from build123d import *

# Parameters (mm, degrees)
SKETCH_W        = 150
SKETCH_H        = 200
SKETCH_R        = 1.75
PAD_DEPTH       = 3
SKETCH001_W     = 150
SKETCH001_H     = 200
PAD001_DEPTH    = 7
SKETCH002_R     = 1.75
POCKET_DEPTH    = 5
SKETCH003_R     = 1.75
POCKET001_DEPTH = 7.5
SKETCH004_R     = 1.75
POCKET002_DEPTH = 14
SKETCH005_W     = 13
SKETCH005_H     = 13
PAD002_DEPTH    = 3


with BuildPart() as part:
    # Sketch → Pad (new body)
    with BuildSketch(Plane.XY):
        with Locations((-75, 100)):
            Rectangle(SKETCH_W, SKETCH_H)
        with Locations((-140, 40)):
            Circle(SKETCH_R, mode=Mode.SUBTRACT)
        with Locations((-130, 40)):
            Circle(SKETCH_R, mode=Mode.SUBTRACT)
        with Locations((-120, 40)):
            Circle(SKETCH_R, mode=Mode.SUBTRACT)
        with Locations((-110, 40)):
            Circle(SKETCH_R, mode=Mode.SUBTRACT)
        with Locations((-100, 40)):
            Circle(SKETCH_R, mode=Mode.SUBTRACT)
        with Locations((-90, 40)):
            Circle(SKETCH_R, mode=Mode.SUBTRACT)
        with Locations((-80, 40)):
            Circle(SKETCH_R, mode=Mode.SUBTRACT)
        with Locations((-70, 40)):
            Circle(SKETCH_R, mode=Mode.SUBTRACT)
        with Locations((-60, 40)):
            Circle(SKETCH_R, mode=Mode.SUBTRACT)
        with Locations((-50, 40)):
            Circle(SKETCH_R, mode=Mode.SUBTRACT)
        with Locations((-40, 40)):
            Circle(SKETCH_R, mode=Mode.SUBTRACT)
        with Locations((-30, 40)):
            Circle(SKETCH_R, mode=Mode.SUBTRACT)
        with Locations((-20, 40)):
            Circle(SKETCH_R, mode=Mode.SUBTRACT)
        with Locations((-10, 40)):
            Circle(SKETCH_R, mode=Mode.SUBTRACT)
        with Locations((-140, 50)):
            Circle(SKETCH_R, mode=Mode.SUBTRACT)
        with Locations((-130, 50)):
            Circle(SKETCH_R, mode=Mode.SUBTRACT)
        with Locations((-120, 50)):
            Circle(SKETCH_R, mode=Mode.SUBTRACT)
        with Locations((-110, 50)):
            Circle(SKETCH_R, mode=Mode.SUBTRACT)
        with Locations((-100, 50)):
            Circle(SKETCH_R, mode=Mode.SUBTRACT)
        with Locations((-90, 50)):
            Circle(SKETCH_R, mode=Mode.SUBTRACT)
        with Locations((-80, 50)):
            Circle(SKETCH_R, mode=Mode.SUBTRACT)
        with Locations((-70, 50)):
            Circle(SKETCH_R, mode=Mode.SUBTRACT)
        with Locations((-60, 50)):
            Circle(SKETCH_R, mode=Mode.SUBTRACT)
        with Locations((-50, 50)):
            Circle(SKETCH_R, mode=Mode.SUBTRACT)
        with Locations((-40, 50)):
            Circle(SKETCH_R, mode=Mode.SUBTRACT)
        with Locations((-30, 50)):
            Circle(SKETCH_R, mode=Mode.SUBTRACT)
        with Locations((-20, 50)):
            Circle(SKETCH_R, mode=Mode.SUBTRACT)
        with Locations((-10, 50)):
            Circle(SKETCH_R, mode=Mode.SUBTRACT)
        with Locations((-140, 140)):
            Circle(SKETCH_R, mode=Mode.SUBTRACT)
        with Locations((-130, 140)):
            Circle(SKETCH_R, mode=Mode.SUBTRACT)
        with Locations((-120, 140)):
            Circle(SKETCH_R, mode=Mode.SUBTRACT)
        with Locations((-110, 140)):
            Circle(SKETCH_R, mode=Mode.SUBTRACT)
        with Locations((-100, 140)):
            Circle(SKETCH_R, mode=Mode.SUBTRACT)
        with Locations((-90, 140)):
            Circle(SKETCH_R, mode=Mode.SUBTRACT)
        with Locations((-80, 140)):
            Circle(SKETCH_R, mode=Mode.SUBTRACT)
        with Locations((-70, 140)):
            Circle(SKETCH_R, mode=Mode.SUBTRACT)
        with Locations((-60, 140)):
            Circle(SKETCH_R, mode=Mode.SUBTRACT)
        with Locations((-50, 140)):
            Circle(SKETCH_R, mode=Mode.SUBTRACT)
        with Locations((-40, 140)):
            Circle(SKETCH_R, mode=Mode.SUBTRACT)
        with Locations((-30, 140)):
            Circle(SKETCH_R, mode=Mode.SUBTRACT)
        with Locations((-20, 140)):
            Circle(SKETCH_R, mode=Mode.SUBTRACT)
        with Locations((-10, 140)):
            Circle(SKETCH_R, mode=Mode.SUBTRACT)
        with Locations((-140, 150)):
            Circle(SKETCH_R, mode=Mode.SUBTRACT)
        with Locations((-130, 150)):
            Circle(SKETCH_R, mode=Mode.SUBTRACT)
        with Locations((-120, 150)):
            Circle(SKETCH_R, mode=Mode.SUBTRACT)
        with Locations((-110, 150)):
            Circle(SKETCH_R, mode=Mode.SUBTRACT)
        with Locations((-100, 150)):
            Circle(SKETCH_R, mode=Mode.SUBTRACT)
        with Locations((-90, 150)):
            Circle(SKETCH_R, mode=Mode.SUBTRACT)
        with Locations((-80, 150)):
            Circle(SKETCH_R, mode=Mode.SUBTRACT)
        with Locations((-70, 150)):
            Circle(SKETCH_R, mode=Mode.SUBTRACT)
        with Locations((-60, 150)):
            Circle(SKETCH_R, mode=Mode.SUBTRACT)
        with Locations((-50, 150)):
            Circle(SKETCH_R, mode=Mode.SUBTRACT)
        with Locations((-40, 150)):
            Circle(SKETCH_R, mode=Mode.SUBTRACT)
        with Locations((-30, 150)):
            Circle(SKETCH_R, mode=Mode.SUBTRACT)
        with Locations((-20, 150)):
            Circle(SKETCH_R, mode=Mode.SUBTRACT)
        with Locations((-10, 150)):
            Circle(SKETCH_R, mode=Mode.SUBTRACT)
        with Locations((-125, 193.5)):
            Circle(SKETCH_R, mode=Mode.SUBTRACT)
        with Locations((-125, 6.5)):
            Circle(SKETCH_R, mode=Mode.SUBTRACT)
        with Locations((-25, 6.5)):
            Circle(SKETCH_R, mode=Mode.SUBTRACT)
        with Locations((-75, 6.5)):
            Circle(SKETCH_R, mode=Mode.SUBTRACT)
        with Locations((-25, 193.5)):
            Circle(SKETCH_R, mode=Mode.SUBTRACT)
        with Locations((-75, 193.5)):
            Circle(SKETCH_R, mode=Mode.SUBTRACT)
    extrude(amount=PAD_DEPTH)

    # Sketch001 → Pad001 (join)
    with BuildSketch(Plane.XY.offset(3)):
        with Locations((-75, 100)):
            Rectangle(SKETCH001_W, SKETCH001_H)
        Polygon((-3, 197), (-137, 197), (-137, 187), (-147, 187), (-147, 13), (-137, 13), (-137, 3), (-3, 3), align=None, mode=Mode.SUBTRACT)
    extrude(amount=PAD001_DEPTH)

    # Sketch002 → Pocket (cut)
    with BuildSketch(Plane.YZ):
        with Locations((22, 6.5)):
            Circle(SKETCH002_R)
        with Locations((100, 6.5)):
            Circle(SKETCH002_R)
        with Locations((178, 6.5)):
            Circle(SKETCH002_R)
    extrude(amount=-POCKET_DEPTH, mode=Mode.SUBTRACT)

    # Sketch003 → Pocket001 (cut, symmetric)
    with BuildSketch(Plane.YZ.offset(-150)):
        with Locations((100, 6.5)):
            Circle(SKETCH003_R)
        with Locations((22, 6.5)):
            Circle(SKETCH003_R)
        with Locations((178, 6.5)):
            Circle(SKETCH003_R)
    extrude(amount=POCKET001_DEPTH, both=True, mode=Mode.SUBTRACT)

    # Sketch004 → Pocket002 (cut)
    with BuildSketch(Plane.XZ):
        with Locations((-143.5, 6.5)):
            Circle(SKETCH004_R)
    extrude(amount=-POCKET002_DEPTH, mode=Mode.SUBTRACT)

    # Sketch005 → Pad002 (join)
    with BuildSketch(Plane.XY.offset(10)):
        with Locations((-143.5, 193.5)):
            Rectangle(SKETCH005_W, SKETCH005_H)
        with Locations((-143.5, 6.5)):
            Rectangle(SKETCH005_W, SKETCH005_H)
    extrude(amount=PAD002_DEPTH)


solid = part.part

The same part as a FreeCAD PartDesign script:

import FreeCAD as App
import Part
import Sketcher

V = App.Vector
Q = App.Units.Quantity

doc = App.newDocument("Part")
body = doc.addObject("PartDesign::Body", "Body")

sketch1 = body.newObject("Sketcher::SketchObject", "Sketch")
sketch1.AttachmentSupport = (doc.getObject("XY_Plane"), [""])
sketch1.MapMode = "FlatFace"
sketch1.addGeometry(Part.LineSegment(V(-150, 200, 0), V(-150, 0, 0)), False)
sketch1.addGeometry(Part.LineSegment(V(-150, 0, 0), V(0, 0, 0)), False)
sketch1.addGeometry(Part.LineSegment(V(0, 0, 0), V(0, 200, 0)), False)
sketch1.addGeometry(Part.LineSegment(V(0, 200, 0), V(-150, 200, 0)), False)
sketch1.addGeometry(Part.Circle(V(-125, 6.5, 0), V(0, 0, 1), 1.8), False)
sketch1.addGeometry(Part.Circle(V(-140, 40, 0), V(0, 0, 1), 1.8), False)
sketch1.addGeometry(Part.Circle(V(-130, 40, 0), V(0, 0, 1), 1.8), False)
sketch1.addGeometry(Part.Circle(V(-140, 50, 0), V(0, 0, 1), 1.8), False)
sketch1.addGeometry(Part.Circle(V(-130, 50, 0), V(0, 0, 1), 1.8), False)
sketch1.addGeometry(Part.Circle(V(-120, 40, 0), V(0, 0, 1), 1.8), False)
sketch1.addGeometry(Part.Circle(V(-110, 40, 0), V(0, 0, 1), 1.8), False)
sketch1.addGeometry(Part.Circle(V(-120, 50, 0), V(0, 0, 1), 1.8), False)
sketch1.addGeometry(Part.Circle(V(-110, 50, 0), V(0, 0, 1), 1.8), False)
sketch1.addGeometry(Part.Circle(V(-100, 40, 0), V(0, 0, 1), 1.8), False)
sketch1.addGeometry(Part.Circle(V(-100, 50, 0), V(0, 0, 1), 1.8), False)
sketch1.addGeometry(Part.Circle(V(-90, 40, 0), V(0, 0, 1), 1.8), False)
sketch1.addGeometry(Part.Circle(V(-80, 40, 0), V(0, 0, 1), 1.8), False)
sketch1.addGeometry(Part.Circle(V(-90, 50, 0), V(0, 0, 1), 1.8), False)
sketch1.addGeometry(Part.Circle(V(-80, 50, 0), V(0, 0, 1), 1.8), False)
sketch1.addGeometry(Part.Circle(V(-75, 6.5, 0), V(0, 0, 1), 1.8), False)
sketch1.addGeometry(Part.Circle(V(-70, 40, 0), V(0, 0, 1), 1.8), False)
sketch1.addGeometry(Part.Circle(V(-60, 40, 0), V(0, 0, 1), 1.8), False)
sketch1.addGeometry(Part.Circle(V(-70, 50, 0), V(0, 0, 1), 1.8), False)
sketch1.addGeometry(Part.Circle(V(-60, 50, 0), V(0, 0, 1), 1.8), False)
sketch1.addGeometry(Part.Circle(V(-50, 40, 0), V(0, 0, 1), 1.8), False)
sketch1.addGeometry(Part.Circle(V(-50, 50, 0), V(0, 0, 1), 1.8), False)
sketch1.addGeometry(Part.Circle(V(-25, 6.5, 0), V(0, 0, 1), 1.8), False)
sketch1.addGeometry(Part.Circle(V(-40, 40, 0), V(0, 0, 1), 1.8), False)
sketch1.addGeometry(Part.Circle(V(-30, 40, 0), V(0, 0, 1), 1.8), False)
sketch1.addGeometry(Part.Circle(V(-40, 50, 0), V(0, 0, 1), 1.8), False)
sketch1.addGeometry(Part.Circle(V(-30, 50, 0), V(0, 0, 1), 1.8), False)
sketch1.addGeometry(Part.Circle(V(-20, 40, 0), V(0, 0, 1), 1.8), False)
sketch1.addGeometry(Part.Circle(V(-10, 40, 0), V(0, 0, 1), 1.8), False)
sketch1.addGeometry(Part.Circle(V(-20, 50, 0), V(0, 0, 1), 1.8), False)
sketch1.addGeometry(Part.Circle(V(-10, 50, 0), V(0, 0, 1), 1.8), False)
sketch1.addGeometry(Part.Circle(V(-140, 140, 0), V(0, 0, 1), 1.8), False)
sketch1.addGeometry(Part.Circle(V(-130, 140, 0), V(0, 0, 1), 1.8), False)
sketch1.addGeometry(Part.Circle(V(-120, 140, 0), V(0, 0, 1), 1.8), False)
sketch1.addGeometry(Part.Circle(V(-110, 140, 0), V(0, 0, 1), 1.8), False)
sketch1.addGeometry(Part.Circle(V(-100, 140, 0), V(0, 0, 1), 1.8), False)
sketch1.addGeometry(Part.Circle(V(-90, 140, 0), V(0, 0, 1), 1.8), False)
sketch1.addGeometry(Part.Circle(V(-80, 140, 0), V(0, 0, 1), 1.8), False)
sketch1.addGeometry(Part.Circle(V(-140, 150, 0), V(0, 0, 1), 1.8), False)
sketch1.addGeometry(Part.Circle(V(-130, 150, 0), V(0, 0, 1), 1.8), False)
sketch1.addGeometry(Part.Circle(V(-120, 150, 0), V(0, 0, 1), 1.8), False)
sketch1.addGeometry(Part.Circle(V(-110, 150, 0), V(0, 0, 1), 1.8), False)
sketch1.addGeometry(Part.Circle(V(-125, 193.5, 0), V(0, 0, 1), 1.8), False)
sketch1.addGeometry(Part.Circle(V(-100, 150, 0), V(0, 0, 1), 1.8), False)
sketch1.addGeometry(Part.Circle(V(-90, 150, 0), V(0, 0, 1), 1.8), False)
sketch1.addGeometry(Part.Circle(V(-80, 150, 0), V(0, 0, 1), 1.8), False)
sketch1.addGeometry(Part.Circle(V(-70, 140, 0), V(0, 0, 1), 1.8), False)
sketch1.addGeometry(Part.Circle(V(-60, 140, 0), V(0, 0, 1), 1.8), False)
sketch1.addGeometry(Part.Circle(V(-50, 140, 0), V(0, 0, 1), 1.8), False)
sketch1.addGeometry(Part.Circle(V(-40, 140, 0), V(0, 0, 1), 1.8), False)
sketch1.addGeometry(Part.Circle(V(-30, 140, 0), V(0, 0, 1), 1.8), False)
sketch1.addGeometry(Part.Circle(V(-20, 140, 0), V(0, 0, 1), 1.8), False)
sketch1.addGeometry(Part.Circle(V(-10, 140, 0), V(0, 0, 1), 1.8), False)
sketch1.addGeometry(Part.Circle(V(-70, 150, 0), V(0, 0, 1), 1.8), False)
sketch1.addGeometry(Part.Circle(V(-60, 150, 0), V(0, 0, 1), 1.8), False)
sketch1.addGeometry(Part.Circle(V(-50, 150, 0), V(0, 0, 1), 1.8), False)
sketch1.addGeometry(Part.Circle(V(-75, 193.5, 0), V(0, 0, 1), 1.8), False)
sketch1.addGeometry(Part.Circle(V(-40, 150, 0), V(0, 0, 1), 1.8), False)
sketch1.addGeometry(Part.Circle(V(-30, 150, 0), V(0, 0, 1), 1.8), False)
sketch1.addGeometry(Part.Circle(V(-20, 150, 0), V(0, 0, 1), 1.8), False)
sketch1.addGeometry(Part.Circle(V(-10, 150, 0), V(0, 0, 1), 1.8), False)
sketch1.addGeometry(Part.Circle(V(-25, 193.5, 0), V(0, 0, 1), 1.8), False)
sketch1.addConstraint(Sketcher.Constraint("Coincident", 0, 2, 1, 1))
sketch1.addConstraint(Sketcher.Constraint("Coincident", 1, 2, 2, 1))
sketch1.addConstraint(Sketcher.Constraint("Coincident", 2, 2, 3, 1))
sketch1.addConstraint(Sketcher.Constraint("Coincident", 3, 2, 0, 1))
sketch1.addConstraint(Sketcher.Constraint("Vertical", 0))
sketch1.addConstraint(Sketcher.Constraint("Horizontal", 1))
sketch1.addConstraint(Sketcher.Constraint("Vertical", 2))
sketch1.addConstraint(Sketcher.Constraint("Horizontal", 3))
sketch1.addConstraint(Sketcher.Constraint("Coincident", 1, 2, -1, 1))
sketch1.addConstraint(Sketcher.Constraint("Equal", 4, 5))
sketch1.addConstraint(Sketcher.Constraint("Equal", 5, 6))
sketch1.addConstraint(Sketcher.Constraint("Equal", 6, 7))
sketch1.addConstraint(Sketcher.Constraint("Equal", 7, 8))
sketch1.addConstraint(Sketcher.Constraint("Equal", 8, 9))
sketch1.addConstraint(Sketcher.Constraint("Equal", 9, 10))
sketch1.addConstraint(Sketcher.Constraint("Equal", 10, 11))
sketch1.addConstraint(Sketcher.Constraint("Equal", 11, 12))
sketch1.addConstraint(Sketcher.Constraint("Equal", 12, 13))
sketch1.addConstraint(Sketcher.Constraint("Equal", 13, 14))
sketch1.addConstraint(Sketcher.Constraint("Equal", 14, 15))
sketch1.addConstraint(Sketcher.Constraint("Equal", 15, 16))
sketch1.addConstraint(Sketcher.Constraint("Equal", 16, 17))
sketch1.addConstraint(Sketcher.Constraint("Equal", 17, 18))
sketch1.addConstraint(Sketcher.Constraint("Equal", 18, 19))
sketch1.addConstraint(Sketcher.Constraint("Equal", 19, 20))
sketch1.addConstraint(Sketcher.Constraint("Equal", 20, 21))
sketch1.addConstraint(Sketcher.Constraint("Equal", 21, 22))
sketch1.addConstraint(Sketcher.Constraint("Equal", 22, 23))
sketch1.addConstraint(Sketcher.Constraint("Equal", 23, 24))
sketch1.addConstraint(Sketcher.Constraint("Equal", 24, 25))
sketch1.addConstraint(Sketcher.Constraint("Equal", 25, 26))
sketch1.addConstraint(Sketcher.Constraint("Equal", 26, 27))
sketch1.addConstraint(Sketcher.Constraint("Equal", 27, 28))
sketch1.addConstraint(Sketcher.Constraint("Equal", 28, 29))
sketch1.addConstraint(Sketcher.Constraint("Equal", 29, 30))
sketch1.addConstraint(Sketcher.Constraint("Equal", 30, 31))
sketch1.addConstraint(Sketcher.Constraint("Equal", 31, 32))
sketch1.addConstraint(Sketcher.Constraint("Equal", 32, 33))
sketch1.addConstraint(Sketcher.Constraint("Equal", 33, 34))
sketch1.addConstraint(Sketcher.Constraint("Equal", 34, 35))
sketch1.addConstraint(Sketcher.Constraint("Equal", 35, 36))
sketch1.addConstraint(Sketcher.Constraint("Equal", 36, 37))
sketch1.addConstraint(Sketcher.Constraint("Equal", 37, 38))
sketch1.addConstraint(Sketcher.Constraint("Equal", 38, 39))
sketch1.addConstraint(Sketcher.Constraint("Equal", 39, 40))
sketch1.addConstraint(Sketcher.Constraint("Equal", 40, 41))
sketch1.addConstraint(Sketcher.Constraint("Equal", 41, 42))
sketch1.addConstraint(Sketcher.Constraint("Equal", 42, 43))
sketch1.addConstraint(Sketcher.Constraint("Equal", 43, 44))
sketch1.addConstraint(Sketcher.Constraint("Equal", 44, 45))
sketch1.addConstraint(Sketcher.Constraint("Equal", 45, 46))
sketch1.addConstraint(Sketcher.Constraint("Equal", 46, 47))
sketch1.addConstraint(Sketcher.Constraint("Equal", 47, 48))
sketch1.addConstraint(Sketcher.Constraint("Equal", 48, 49))
sketch1.addConstraint(Sketcher.Constraint("Equal", 49, 50))
sketch1.addConstraint(Sketcher.Constraint("Equal", 50, 51))
sketch1.addConstraint(Sketcher.Constraint("Equal", 51, 52))
sketch1.addConstraint(Sketcher.Constraint("Equal", 52, 53))
sketch1.addConstraint(Sketcher.Constraint("Equal", 53, 54))
sketch1.addConstraint(Sketcher.Constraint("Equal", 54, 55))
sketch1.addConstraint(Sketcher.Constraint("Equal", 55, 56))
sketch1.addConstraint(Sketcher.Constraint("Equal", 56, 57))
sketch1.addConstraint(Sketcher.Constraint("Equal", 57, 58))
sketch1.addConstraint(Sketcher.Constraint("Equal", 58, 59))
sketch1.addConstraint(Sketcher.Constraint("Equal", 59, 60))
sketch1.addConstraint(Sketcher.Constraint("Equal", 60, 61))
sketch1.addConstraint(Sketcher.Constraint("Equal", 61, 62))
sketch1.addConstraint(Sketcher.Constraint("Equal", 62, 63))
sketch1.addConstraint(Sketcher.Constraint("Equal", 63, 64))
sketch1.addConstraint(Sketcher.Constraint("Equal", 64, 65))
sketch1.addConstraint(Sketcher.Constraint("Horizontal", 5, 3, 6, 3))
sketch1.addConstraint(Sketcher.Constraint("Horizontal", 7, 3, 8, 3))
sketch1.addConstraint(Sketcher.Constraint("Horizontal", 6, 3, 9, 3))
sketch1.addConstraint(Sketcher.Constraint("Horizontal", 9, 3, 10, 3))
sketch1.addConstraint(Sketcher.Constraint("Horizontal", 8, 3, 11, 3))
sketch1.addConstraint(Sketcher.Constraint("Horizontal", 11, 3, 12, 3))
sketch1.addConstraint(Sketcher.Constraint("Horizontal", 10, 3, 13, 3))
sketch1.addConstraint(Sketcher.Constraint("Horizontal", 12, 3, 14, 3))
sketch1.addConstraint(Sketcher.Constraint("Horizontal", 13, 3, 15, 3))
sketch1.addConstraint(Sketcher.Constraint("Horizontal", 15, 3, 16, 3))
sketch1.addConstraint(Sketcher.Constraint("Horizontal", 14, 3, 17, 3))
sketch1.addConstraint(Sketcher.Constraint("Horizontal", 17, 3, 18, 3))
sketch1.addConstraint(Sketcher.Constraint("Horizontal", 4, 3, 19, 3))
sketch1.addConstraint(Sketcher.Constraint("Horizontal", 16, 3, 20, 3))
sketch1.addConstraint(Sketcher.Constraint("Horizontal", 20, 3, 21, 3))
sketch1.addConstraint(Sketcher.Constraint("Horizontal", 18, 3, 22, 3))
sketch1.addConstraint(Sketcher.Constraint("Horizontal", 22, 3, 23, 3))
sketch1.addConstraint(Sketcher.Constraint("Horizontal", 21, 3, 24, 3))
sketch1.addConstraint(Sketcher.Constraint("Horizontal", 23, 3, 25, 3))
sketch1.addConstraint(Sketcher.Constraint("Horizontal", 19, 3, 26, 3))
sketch1.addConstraint(Sketcher.Constraint("Horizontal", 24, 3, 27, 3))
sketch1.addConstraint(Sketcher.Constraint("Horizontal", 27, 3, 28, 3))
sketch1.addConstraint(Sketcher.Constraint("Horizontal", 25, 3, 29, 3))
sketch1.addConstraint(Sketcher.Constraint("Horizontal", 29, 3, 30, 3))
sketch1.addConstraint(Sketcher.Constraint("Horizontal", 28, 3, 31, 3))
sketch1.addConstraint(Sketcher.Constraint("Horizontal", 31, 3, 32, 3))
sketch1.addConstraint(Sketcher.Constraint("Horizontal", 30, 3, 33, 3))
sketch1.addConstraint(Sketcher.Constraint("Horizontal", 33, 3, 34, 3))
sketch1.addConstraint(Sketcher.Constraint("Horizontal", 35, 3, 36, 3))
sketch1.addConstraint(Sketcher.Constraint("Horizontal", 36, 3, 37, 3))
sketch1.addConstraint(Sketcher.Constraint("Horizontal", 37, 3, 38, 3))
sketch1.addConstraint(Sketcher.Constraint("Horizontal", 38, 3, 39, 3))
sketch1.addConstraint(Sketcher.Constraint("Horizontal", 39, 3, 40, 3))
sketch1.addConstraint(Sketcher.Constraint("Horizontal", 40, 3, 41, 3))
sketch1.addConstraint(Sketcher.Constraint("Horizontal", 42, 3, 43, 3))
sketch1.addConstraint(Sketcher.Constraint("Horizontal", 43, 3, 44, 3))
sketch1.addConstraint(Sketcher.Constraint("Horizontal", 44, 3, 45, 3))
sketch1.addConstraint(Sketcher.Constraint("Horizontal", 45, 3, 47, 3))
sketch1.addConstraint(Sketcher.Constraint("Horizontal", 47, 3, 48, 3))
sketch1.addConstraint(Sketcher.Constraint("Horizontal", 48, 3, 49, 3))
sketch1.addConstraint(Sketcher.Constraint("Horizontal", 41, 3, 50, 3))
sketch1.addConstraint(Sketcher.Constraint("Horizontal", 50, 3, 51, 3))
sketch1.addConstraint(Sketcher.Constraint("Horizontal", 51, 3, 52, 3))
sketch1.addConstraint(Sketcher.Constraint("Horizontal", 52, 3, 53, 3))
sketch1.addConstraint(Sketcher.Constraint("Horizontal", 53, 3, 54, 3))
sketch1.addConstraint(Sketcher.Constraint("Horizontal", 54, 3, 55, 3))
sketch1.addConstraint(Sketcher.Constraint("Horizontal", 55, 3, 56, 3))
sketch1.addConstraint(Sketcher.Constraint("Horizontal", 49, 3, 57, 3))
sketch1.addConstraint(Sketcher.Constraint("Horizontal", 57, 3, 58, 3))
sketch1.addConstraint(Sketcher.Constraint("Horizontal", 58, 3, 59, 3))
sketch1.addConstraint(Sketcher.Constraint("Horizontal", 46, 3, 60, 3))
sketch1.addConstraint(Sketcher.Constraint("Horizontal", 59, 3, 61, 3))
sketch1.addConstraint(Sketcher.Constraint("Horizontal", 61, 3, 62, 3))
sketch1.addConstraint(Sketcher.Constraint("Horizontal", 62, 3, 63, 3))
sketch1.addConstraint(Sketcher.Constraint("Horizontal", 63, 3, 64, 3))
sketch1.addConstraint(Sketcher.Constraint("Horizontal", 60, 3, 65, 3))
sketch1.addConstraint(Sketcher.Constraint("Vertical", 5, 3, 7, 3))
sketch1.addConstraint(Sketcher.Constraint("Vertical", 6, 3, 8, 3))
sketch1.addConstraint(Sketcher.Constraint("Vertical", 9, 3, 11, 3))
sketch1.addConstraint(Sketcher.Constraint("Vertical", 10, 3, 12, 3))
sketch1.addConstraint(Sketcher.Constraint("Vertical", 13, 3, 14, 3))
sketch1.addConstraint(Sketcher.Constraint("Vertical", 15, 3, 17, 3))
sketch1.addConstraint(Sketcher.Constraint("Vertical", 16, 3, 18, 3))
sketch1.addConstraint(Sketcher.Constraint("Vertical", 20, 3, 22, 3))
sketch1.addConstraint(Sketcher.Constraint("Vertical", 21, 3, 23, 3))
sketch1.addConstraint(Sketcher.Constraint("Vertical", 24, 3, 25, 3))
sketch1.addConstraint(Sketcher.Constraint("Vertical", 27, 3, 29, 3))
sketch1.addConstraint(Sketcher.Constraint("Vertical", 28, 3, 30, 3))
sketch1.addConstraint(Sketcher.Constraint("Vertical", 31, 3, 33, 3))
sketch1.addConstraint(Sketcher.Constraint("Vertical", 32, 3, 34, 3))
sketch1.addConstraint(Sketcher.Constraint("Vertical", 7, 3, 35, 3))
sketch1.addConstraint(Sketcher.Constraint("Vertical", 8, 3, 36, 3))
sketch1.addConstraint(Sketcher.Constraint("Vertical", 11, 3, 37, 3))
sketch1.addConstraint(Sketcher.Constraint("Vertical", 12, 3, 38, 3))
sketch1.addConstraint(Sketcher.Constraint("Vertical", 14, 3, 39, 3))
sketch1.addConstraint(Sketcher.Constraint("Vertical", 17, 3, 40, 3))
sketch1.addConstraint(Sketcher.Constraint("Vertical", 18, 3, 41, 3))
sketch1.addConstraint(Sketcher.Constraint("Vertical", 35, 3, 42, 3))
sketch1.addConstraint(Sketcher.Constraint("Vertical", 36, 3, 43, 3))
sketch1.addConstraint(Sketcher.Constraint("Vertical", 37, 3, 44, 3))
sketch1.addConstraint(Sketcher.Constraint("Vertical", 38, 3, 45, 3))
sketch1.addConstraint(Sketcher.Constraint("Vertical", 4, 3, 46, 3))
sketch1.addConstraint(Sketcher.Constraint("Vertical", 39, 3, 47, 3))
sketch1.addConstraint(Sketcher.Constraint("Vertical", 40, 3, 48, 3))
sketch1.addConstraint(Sketcher.Constraint("Vertical", 41, 3, 49, 3))
sketch1.addConstraint(Sketcher.Constraint("Vertical", 22, 3, 50, 3))
sketch1.addConstraint(Sketcher.Constraint("Vertical", 23, 3, 51, 3))
sketch1.addConstraint(Sketcher.Constraint("Vertical", 25, 3, 52, 3))
sketch1.addConstraint(Sketcher.Constraint("Vertical", 29, 3, 53, 3))
sketch1.addConstraint(Sketcher.Constraint("Vertical", 30, 3, 54, 3))
sketch1.addConstraint(Sketcher.Constraint("Vertical", 33, 3, 55, 3))
sketch1.addConstraint(Sketcher.Constraint("Vertical", 34, 3, 56, 3))
sketch1.addConstraint(Sketcher.Constraint("Vertical", 50, 3, 57, 3))
sketch1.addConstraint(Sketcher.Constraint("Vertical", 51, 3, 58, 3))
sketch1.addConstraint(Sketcher.Constraint("Vertical", 52, 3, 59, 3))
sketch1.addConstraint(Sketcher.Constraint("Vertical", 19, 3, 60, 3))
sketch1.addConstraint(Sketcher.Constraint("Vertical", 53, 3, 61, 3))
sketch1.addConstraint(Sketcher.Constraint("Vertical", 54, 3, 62, 3))
sketch1.addConstraint(Sketcher.Constraint("Vertical", 55, 3, 63, 3))
sketch1.addConstraint(Sketcher.Constraint("Vertical", 56, 3, 64, 3))
sketch1.addConstraint(Sketcher.Constraint("Vertical", 26, 3, 65, 3))
sketch1.addConstraint(Sketcher.Constraint("Diameter", 4, Q("3.5 mm")))
sketch1.addConstraint(Sketcher.Constraint("DistanceX", 1, 1, 1, 2, Q("150 mm")))
sketch1.addConstraint(Sketcher.Constraint("DistanceY", 0, 2, 0, 1, Q("200 mm")))
sketch1.addConstraint(Sketcher.Constraint("DistanceX", 4, 3, -1, 1, Q("125 mm")))
sketch1.addConstraint(Sketcher.Constraint("DistanceX", 5, 3, -1, 1, Q("140 mm")))
sketch1.addConstraint(Sketcher.Constraint("DistanceY", -1, 1, 5, 3, Q("40 mm")))
sketch1.addConstraint(Sketcher.Constraint("DistanceX", 6, 3, -1, 1, Q("130 mm")))
sketch1.addConstraint(Sketcher.Constraint("DistanceY", -1, 1, 7, 3, Q("50 mm")))
sketch1.addConstraint(Sketcher.Constraint("DistanceX", 9, 3, -1, 1, Q("120 mm")))
sketch1.addConstraint(Sketcher.Constraint("DistanceX", 10, 3, -1, 1, Q("110 mm")))
sketch1.addConstraint(Sketcher.Constraint("DistanceX", 13, 3, -1, 1, Q("100 mm")))
sketch1.addConstraint(Sketcher.Constraint("DistanceX", 15, 3, -1, 1, Q("90 mm")))
sketch1.addConstraint(Sketcher.Constraint("DistanceX", 16, 3, -1, 1, Q("80 mm")))
sketch1.addConstraint(Sketcher.Constraint("DistanceX", 19, 3, -1, 1, Q("75 mm")))
sketch1.addConstraint(Sketcher.Constraint("DistanceX", 20, 3, -1, 1, Q("70 mm")))
sketch1.addConstraint(Sketcher.Constraint("DistanceX", 21, 3, -1, 1, Q("60 mm")))
sketch1.addConstraint(Sketcher.Constraint("DistanceX", 24, 3, -1, 1, Q("50 mm")))
sketch1.addConstraint(Sketcher.Constraint("DistanceX", 26, 3, -1, 1, Q("25 mm")))
sketch1.addConstraint(Sketcher.Constraint("DistanceX", 27, 3, -1, 1, Q("40 mm")))
sketch1.addConstraint(Sketcher.Constraint("DistanceX", 28, 3, -1, 1, Q("30 mm")))
sketch1.addConstraint(Sketcher.Constraint("DistanceX", 31, 3, -1, 1, Q("20 mm")))
sketch1.addConstraint(Sketcher.Constraint("DistanceX", 32, 3, -1, 1, Q("10 mm")))
sketch1.addConstraint(Sketcher.Constraint("DistanceY", -1, 1, 35, 3, Q("140 mm")))
sketch1.addConstraint(Sketcher.Constraint("DistanceY", -1, 1, 42, 3, Q("150 mm")))
sketch1.addConstraint(Sketcher.Constraint("DistanceY", -1, 1, 4, 3, Q("6.5 mm")))
sketch1.addConstraint(Sketcher.Constraint("DistanceY", -1, 1, 46, 3, Q("193.5 mm")))
pad1 = body.newObject("PartDesign::Pad", "Pad")
pad1.Profile = sketch1
pad1.Length = 3

sketch2 = body.newObject("Sketcher::SketchObject", "Sketch001")
sketch2.AttachmentSupport = (doc.getObject("XY_Plane"), [""])
sketch2.MapMode = "FlatFace"
sketch2.AttachmentOffset = App.Placement(V(0, 0, 3), App.Rotation())
sketch2.addGeometry(Part.LineSegment(V(-150, 200, 0), V(-150, 0, 0)), False)
sketch2.addGeometry(Part.LineSegment(V(-150, 0, 0), V(0, 0, 0)), False)
sketch2.addGeometry(Part.LineSegment(V(0, 0, 0), V(0, 200, 0)), False)
sketch2.addGeometry(Part.LineSegment(V(0, 200, 0), V(-150, 200, 0)), False)
sketch2.addGeometry(Part.LineSegment(V(-137, 197, 0), V(-3, 197, 0)), False)
sketch2.addGeometry(Part.LineSegment(V(-3, 197, 0), V(-3, 3, 0)), False)
sketch2.addGeometry(Part.LineSegment(V(-3, 3, 0), V(-137, 3, 0)), False)
sketch2.addGeometry(Part.LineSegment(V(-137, 3, 0), V(-137, 13, 0)), False)
sketch2.addGeometry(Part.LineSegment(V(-137, 13, 0), V(-147, 13, 0)), False)
sketch2.addGeometry(Part.LineSegment(V(-147, 13, 0), V(-147, 187, 0)), False)
sketch2.addGeometry(Part.LineSegment(V(-147, 187, 0), V(-137, 187, 0)), False)
sketch2.addGeometry(Part.LineSegment(V(-137, 187, 0), V(-137, 197, 0)), False)
sketch2.addConstraint(Sketcher.Constraint("Coincident", 0, 2, 1, 1))
sketch2.addConstraint(Sketcher.Constraint("Coincident", 1, 2, 2, 1))
sketch2.addConstraint(Sketcher.Constraint("Coincident", 2, 2, 3, 1))
sketch2.addConstraint(Sketcher.Constraint("Coincident", 3, 2, 0, 1))
sketch2.addConstraint(Sketcher.Constraint("Coincident", 4, 2, 5, 1))
sketch2.addConstraint(Sketcher.Constraint("Coincident", 5, 2, 6, 1))
sketch2.addConstraint(Sketcher.Constraint("Coincident", 6, 2, 7, 1))
sketch2.addConstraint(Sketcher.Constraint("Coincident", 7, 2, 8, 1))
sketch2.addConstraint(Sketcher.Constraint("Coincident", 8, 2, 9, 1))
sketch2.addConstraint(Sketcher.Constraint("Coincident", 9, 2, 10, 1))
sketch2.addConstraint(Sketcher.Constraint("Coincident", 10, 2, 11, 1))
sketch2.addConstraint(Sketcher.Constraint("Coincident", 11, 2, 4, 1))
sketch2.addConstraint(Sketcher.Constraint("Vertical", 0))
sketch2.addConstraint(Sketcher.Constraint("Horizontal", 1))
sketch2.addConstraint(Sketcher.Constraint("Vertical", 2))
sketch2.addConstraint(Sketcher.Constraint("Horizontal", 3))
sketch2.addConstraint(Sketcher.Constraint("Horizontal", 4))
sketch2.addConstraint(Sketcher.Constraint("Vertical", 5))
sketch2.addConstraint(Sketcher.Constraint("Horizontal", 6))
sketch2.addConstraint(Sketcher.Constraint("Vertical", 7))
sketch2.addConstraint(Sketcher.Constraint("Horizontal", 8))
sketch2.addConstraint(Sketcher.Constraint("Vertical", 9))
sketch2.addConstraint(Sketcher.Constraint("Horizontal", 10))
sketch2.addConstraint(Sketcher.Constraint("Vertical", 11))
sketch2.addConstraint(Sketcher.Constraint("Coincident", 1, 2, -1, 1))
sketch2.addConstraint(Sketcher.Constraint("Vertical", 7, 2, 10, 2))
sketch2.addConstraint(Sketcher.Constraint("Equal", 10, 7))
sketch2.addConstraint(Sketcher.Constraint("Equal", 7, 11))
sketch2.addConstraint(Sketcher.Constraint("DistanceX", 1, 1, 1, 2, Q("150 mm")))
sketch2.addConstraint(Sketcher.Constraint("DistanceX", 4, 1, 4, 2, Q("134 mm")))
sketch2.addConstraint(Sketcher.Constraint("DistanceX", 8, 2, 8, 1, Q("10 mm")))
sketch2.addConstraint(Sketcher.Constraint("DistanceY", 0, 2, 0, 1, Q("200 mm")))
sketch2.addConstraint(Sketcher.Constraint("DistanceY", 5, 2, 5, 1, Q("194 mm")))
sketch2.addConstraint(Sketcher.Constraint("DistanceX", 4, 2, -1, 1, Q("3 mm")))
sketch2.addConstraint(Sketcher.Constraint("DistanceY", -1, 1, 4, 2, Q("197 mm")))
pad2 = body.newObject("PartDesign::Pad", "Pad001")
pad2.Profile = sketch2
pad2.Length = 7

sketch3 = body.newObject("Sketcher::SketchObject", "Sketch002")
sketch3.AttachmentSupport = (doc.getObject("YZ_Plane"), [""])
sketch3.MapMode = "FlatFace"
sketch3.addGeometry(Part.Circle(V(22, 6.5, 0), V(0, 0, 1), 1.8), False)
sketch3.addGeometry(Part.Circle(V(100, 6.5, 0), V(0, 0, 1), 1.8), False)
sketch3.addGeometry(Part.Circle(V(178, 6.5, 0), V(0, 0, 1), 1.8), False)
sketch3.addConstraint(Sketcher.Constraint("Equal", 0, 1))
sketch3.addConstraint(Sketcher.Constraint("Equal", 1, 2))
sketch3.addConstraint(Sketcher.Constraint("Horizontal", 0, 3, 1, 3))
sketch3.addConstraint(Sketcher.Constraint("Horizontal", 1, 3, 2, 3))
sketch3.addConstraint(Sketcher.Constraint("Diameter", 0, Q("3.5 mm")))
sketch3.addConstraint(Sketcher.Constraint("DistanceX", -1, 1, 0, 3, Q("22 mm")))
sketch3.addConstraint(Sketcher.Constraint("DistanceX", -1, 1, 1, 3, Q("100 mm")))
sketch3.addConstraint(Sketcher.Constraint("DistanceX", -1, 1, 2, 3, Q("178 mm")))
sketch3.addConstraint(Sketcher.Constraint("DistanceY", -1, 1, 0, 3, Q("6.5 mm")))
pocket1 = body.newObject("PartDesign::Pocket", "Pocket")
pocket1.Profile = sketch3
pocket1.Length = 5

sketch4 = body.newObject("Sketcher::SketchObject", "Sketch003")
sketch4.AttachmentSupport = (doc.getObject("YZ_Plane"), [""])
sketch4.MapMode = "FlatFace"
sketch4.AttachmentOffset = App.Placement(V(0, 0, -150), App.Rotation())
sketch4.addGeometry(Part.Circle(V(100, 6.5, 0), V(0, 0, 1), 1.8), False)
sketch4.addGeometry(Part.Circle(V(22, 6.5, 0), V(0, 0, 1), 1.8), False)
sketch4.addGeometry(Part.Circle(V(178, 6.5, 0), V(0, 0, 1), 1.8), False)
sketch4.addConstraint(Sketcher.Constraint("Equal", 0, 1))
sketch4.addConstraint(Sketcher.Constraint("Equal", 1, 2))
sketch4.addConstraint(Sketcher.Constraint("Horizontal", 0, 3, 1, 3))
sketch4.addConstraint(Sketcher.Constraint("Horizontal", 1, 3, 2, 3))
sketch4.addConstraint(Sketcher.Constraint("Diameter", 0, Q("3.5 mm")))
sketch4.addConstraint(Sketcher.Constraint("DistanceX", -1, 1, 0, 3, Q("100 mm")))
sketch4.addConstraint(Sketcher.Constraint("DistanceX", -1, 1, 1, 3, Q("22 mm")))
sketch4.addConstraint(Sketcher.Constraint("DistanceX", -1, 1, 2, 3, Q("178 mm")))
sketch4.addConstraint(Sketcher.Constraint("DistanceY", -1, 1, 0, 3, Q("6.5 mm")))
pocket2 = body.newObject("PartDesign::Pocket", "Pocket001")
pocket2.Profile = sketch4
pocket2.Length = 15
pocket2.Midplane = True

sketch5 = body.newObject("Sketcher::SketchObject", "Sketch004")
sketch5.AttachmentSupport = (doc.getObject("XZ_Plane"), [""])
sketch5.MapMode = "FlatFace"
sketch5.addGeometry(Part.Circle(V(-143.5, 6.5, 0), V(0, 0, 1), 1.8), False)
sketch5.addConstraint(Sketcher.Constraint("Diameter", 0, Q("3.5 mm")))
sketch5.addConstraint(Sketcher.Constraint("DistanceX", 0, 3, -1, 1, Q("143.5 mm")))
sketch5.addConstraint(Sketcher.Constraint("DistanceY", -1, 1, 0, 3, Q("6.5 mm")))
pocket3 = body.newObject("PartDesign::Pocket", "Pocket002")
pocket3.Profile = sketch5
pocket3.Length = 14

sketch6 = body.newObject("Sketcher::SketchObject", "Sketch005")
sketch6.AttachmentSupport = (doc.getObject("XY_Plane"), [""])
sketch6.MapMode = "FlatFace"
sketch6.AttachmentOffset = App.Placement(V(0, 0, 10), App.Rotation())
sketch6.addGeometry(Part.LineSegment(V(-150, 200, 0), V(-150, 187, 0)), False)
sketch6.addGeometry(Part.LineSegment(V(-150, 187, 0), V(-137, 187, 0)), False)
sketch6.addGeometry(Part.LineSegment(V(-137, 187, 0), V(-137, 200, 0)), False)
sketch6.addGeometry(Part.LineSegment(V(-137, 200, 0), V(-150, 200, 0)), False)
sketch6.addGeometry(Part.LineSegment(V(-150, 13, 0), V(-150, 0, 0)), False)
sketch6.addGeometry(Part.LineSegment(V(-150, 0, 0), V(-137, 0, 0)), False)
sketch6.addGeometry(Part.LineSegment(V(-137, 0, 0), V(-137, 13, 0)), False)
sketch6.addGeometry(Part.LineSegment(V(-137, 13, 0), V(-150, 13, 0)), False)
sketch6.addConstraint(Sketcher.Constraint("Coincident", 0, 2, 1, 1))
sketch6.addConstraint(Sketcher.Constraint("Coincident", 1, 2, 2, 1))
sketch6.addConstraint(Sketcher.Constraint("Coincident", 2, 2, 3, 1))
sketch6.addConstraint(Sketcher.Constraint("Coincident", 3, 2, 0, 1))
sketch6.addConstraint(Sketcher.Constraint("Coincident", 4, 2, 5, 1))
sketch6.addConstraint(Sketcher.Constraint("Coincident", 5, 2, 6, 1))
sketch6.addConstraint(Sketcher.Constraint("Coincident", 6, 2, 7, 1))
sketch6.addConstraint(Sketcher.Constraint("Coincident", 7, 2, 4, 1))
sketch6.addConstraint(Sketcher.Constraint("Vertical", 0))
sketch6.addConstraint(Sketcher.Constraint("Horizontal", 1))
sketch6.addConstraint(Sketcher.Constraint("Vertical", 2))
sketch6.addConstraint(Sketcher.Constraint("Horizontal", 3))
sketch6.addConstraint(Sketcher.Constraint("Vertical", 4))
sketch6.addConstraint(Sketcher.Constraint("Horizontal", 5))
sketch6.addConstraint(Sketcher.Constraint("Vertical", 6))
sketch6.addConstraint(Sketcher.Constraint("Horizontal", 7))
sketch6.addConstraint(Sketcher.Constraint("PointOnObject", 4, 2, -1))
sketch6.addConstraint(Sketcher.Constraint("Vertical", 3, 2, 4, 2))
sketch6.addConstraint(Sketcher.Constraint("Vertical", 2, 2, 5, 2))
sketch6.addConstraint(Sketcher.Constraint("Equal", 7, 0))
sketch6.addConstraint(Sketcher.Constraint("Equal", 2, 4))
sketch6.addConstraint(Sketcher.Constraint("DistanceX", 1, 1, 1, 2, Q("13 mm")))
sketch6.addConstraint(Sketcher.Constraint("DistanceX", 0, 2, -1, 1, Q("150 mm")))
sketch6.addConstraint(Sketcher.Constraint("DistanceY", -1, 1, 0, 2, Q("187 mm")))
pad3 = body.newObject("PartDesign::Pad", "Pad002")
pad3.Profile = sketch6
pad3.Length = 3

doc.recompute()
